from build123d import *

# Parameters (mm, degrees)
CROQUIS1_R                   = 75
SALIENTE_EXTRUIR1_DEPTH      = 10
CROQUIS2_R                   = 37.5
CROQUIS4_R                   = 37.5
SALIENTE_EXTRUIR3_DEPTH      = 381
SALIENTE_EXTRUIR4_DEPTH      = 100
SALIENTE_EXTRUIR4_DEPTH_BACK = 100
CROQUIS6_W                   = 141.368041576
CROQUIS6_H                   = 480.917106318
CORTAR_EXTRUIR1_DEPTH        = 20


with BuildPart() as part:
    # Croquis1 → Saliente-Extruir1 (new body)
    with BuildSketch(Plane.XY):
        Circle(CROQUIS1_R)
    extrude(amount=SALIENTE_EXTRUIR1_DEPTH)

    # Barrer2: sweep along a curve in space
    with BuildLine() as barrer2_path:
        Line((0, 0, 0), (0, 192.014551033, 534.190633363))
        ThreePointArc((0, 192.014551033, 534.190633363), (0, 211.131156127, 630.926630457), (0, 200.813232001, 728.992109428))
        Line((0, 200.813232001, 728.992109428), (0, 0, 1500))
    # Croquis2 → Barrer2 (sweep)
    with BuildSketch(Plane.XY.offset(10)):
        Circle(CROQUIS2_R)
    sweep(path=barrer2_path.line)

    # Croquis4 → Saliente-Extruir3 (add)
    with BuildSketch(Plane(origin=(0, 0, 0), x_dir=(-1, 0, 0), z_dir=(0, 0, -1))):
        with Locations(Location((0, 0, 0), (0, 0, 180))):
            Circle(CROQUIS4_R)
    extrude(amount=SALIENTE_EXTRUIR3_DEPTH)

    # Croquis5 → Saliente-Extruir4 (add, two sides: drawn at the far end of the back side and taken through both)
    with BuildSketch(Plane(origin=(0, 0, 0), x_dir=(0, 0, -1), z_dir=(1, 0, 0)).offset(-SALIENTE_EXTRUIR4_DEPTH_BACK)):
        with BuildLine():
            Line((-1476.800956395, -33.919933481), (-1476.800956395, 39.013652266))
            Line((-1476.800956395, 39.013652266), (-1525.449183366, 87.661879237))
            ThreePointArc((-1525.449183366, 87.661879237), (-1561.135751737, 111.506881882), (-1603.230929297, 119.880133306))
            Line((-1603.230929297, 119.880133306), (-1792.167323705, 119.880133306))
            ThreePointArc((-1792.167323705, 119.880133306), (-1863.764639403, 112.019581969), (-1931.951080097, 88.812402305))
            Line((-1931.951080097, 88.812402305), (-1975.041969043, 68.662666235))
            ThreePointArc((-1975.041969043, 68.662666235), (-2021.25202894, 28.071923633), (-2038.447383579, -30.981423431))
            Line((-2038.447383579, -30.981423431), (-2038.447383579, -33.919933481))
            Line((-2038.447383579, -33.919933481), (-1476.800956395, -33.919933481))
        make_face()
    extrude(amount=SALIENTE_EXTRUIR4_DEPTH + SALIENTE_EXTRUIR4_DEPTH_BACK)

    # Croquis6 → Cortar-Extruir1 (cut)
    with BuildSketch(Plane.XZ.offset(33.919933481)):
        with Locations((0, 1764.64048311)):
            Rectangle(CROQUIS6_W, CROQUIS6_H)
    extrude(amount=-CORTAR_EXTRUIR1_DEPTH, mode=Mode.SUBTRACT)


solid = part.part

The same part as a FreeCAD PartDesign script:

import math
import FreeCAD as App
import Part
import Sketcher
from FreeCAD import Vector
Q = App.Units.Quantity

doc = App.newDocument("Part")
body = doc.addObject("PartDesign::Body", "Body")

# Sketch on XY plane
sketch1 = body.newObject("Sketcher::SketchObject", "Sketch")
sketch1.AttachmentSupport = (doc.getObject("XY_Plane"), [""])
sketch1.MapMode = "FlatFace"
sketch1.addGeometry(Part.Circle(Vector(0, 0, 0), Vector(0, 0, 1), 75), False)
sketch1.addConstraint(Sketcher.Constraint("Coincident", 0, 3, -1, 1))
sketch1.addConstraint(Sketcher.Constraint("Diameter", 0, Q("150 mm")))
pad1 = body.newObject("PartDesign::Pad", "Pad")
pad1.Profile = sketch1
pad1.Length = 10

# Sketch on XY plane
sketch2 = body.newObject("Sketcher::SketchObject", "Sketch001")
sketch2.AttachmentSupport = (doc.getObject("XY_Plane"), [""])
sketch2.MapMode = "FlatFace"
sketch2.AttachmentOffset = App.Placement(Vector(0, 0, 10), App.Rotation())
sketch2.addGeometry(Part.Circle(Vector(0, 0, 0), Vector(0, 0, 1), 37.5), False)
sketch2.addConstraint(Sketcher.Constraint("Coincident", 0, 3, -1, 1))
sketch2.addConstraint(Sketcher.Constraint("Diameter", 0, Q("75 mm")))

# Sketch on YZ plane
sketch3 = body.newObject("Sketcher::SketchObject", "Sketch002")
sketch3.AttachmentSupport = (doc.getObject("YZ_Plane"), [""])
sketch3.MapMode = "FlatFace"
sketch3.addGeometry(Part.LineSegment(Vector(0, 0, 0), Vector(192.014551, 534.190633, 0)), False)
sketch3.addGeometry(Part.ArcOfCircle(Part.Circle(Vector(-118.532742, 645.8167, 0), Vector(0, 0, 1), 330), math.radians(-19.770948), math.radians(14.598658)), False)
sketch3.addGeometry(Part.LineSegment(Vector(200.813232, 728.992109, 0), Vector(0, 1500, 0)), False)
sketch3.addConstraint(Sketcher.Constraint("Tangent", 0, 2, 1, 1))
sketch3.addConstraint(Sketcher.Constraint("Tangent", 1, 2, 2, 1))
sketch3.addConstraint(Sketcher.Constraint("Coincident", 0, 1, -1, 1))
sketch3.addConstraint(Sketcher.Constraint("PointOnObject", 2, 2, -2))
sketch3.addConstraint(Sketcher.Constraint("Radius", 1, Q("330 mm")))
sketch3.addConstraint(Sketcher.Constraint("DistanceY", -1, 1, 2, 2, Q("1500 mm")))
sketch3.addConstraint(Sketcher.Constraint("DistanceY", -1, 1, 1, 3, Q("645.8167 mm")))
sketch3.addConstraint(Sketcher.Constraint("Distance", 2, Q("796.730269 mm")))
doc.recompute()

additivepipe = body.newObject("PartDesign::AdditivePipe", "AdditivePipe")
additivepipe.Profile = sketch2
additivepipe.Spine = (sketch3, ["Edge1", "Edge2", "Edge3"])

# Sketch on XY plane
sketch4 = body.newObject("Sketcher::SketchObject", "Sketch003")
sketch4.AttachmentSupport = (doc.getObject("XY_Plane"), [""])
sketch4.MapMode = "FlatFace"
sketch4.addGeometry(Part.Circle(Vector(0, 0, 0), Vector(0, 0, 1), 37.5), False)
sketch4.addConstraint(Sketcher.Constraint("Coincident", 0, 3, -1, 1))
sketch4.addConstraint(Sketcher.Constraint("Diameter", 0, Q("75 mm")))
pad2 = body.newObject("PartDesign::Pad", "Pad001")
pad2.Profile = sketch4
pad2.Length = 381
pad2.Reversed = True

# Sketch on YZ plane
sketch5 = body.newObject("Sketcher::SketchObject", "Sketch004")
sketch5.AttachmentSupport = (doc.getObject("YZ_Plane"), [""])
sketch5.MapMode = "FlatFace"
sketch5.addGeometry(Part.LineSegment(Vector(-33.919933, 1476.800956, 0), Vector(39.013652, 1476.800956, 0)), False)
sketch5.addGeometry(Part.LineSegment(Vector(39.013652, 1476.800956, 0), Vector(87.661879, 1525.449183, 0)), False)
sketch5.addGeometry(Part.ArcOfCircle(Part.Circle(Vector(9.880133, 1603.230929, 0), Vector(0, 0, 1), 110), math.radians(-45), math.radians(0)), False)
sketch5.addGeometry(Part.LineSegment(Vector(119.880133, 1603.230929, 0), Vector(119.880133, 1792.167324, 0)), False)
sketch5.addGeometry(Part.ArcOfCircle(Part.Circle(Vector(-210.119867, 1792.167324, 0), Vector(0, 0, 1), 330), math.radians(0), math.radians(25.061267)), False)
sketch5.addGeometry(Part.LineSegment(Vector(88.812402, 1931.95108, 0), Vector(68.662666, 1975.041969, 0)), False)
sketch5.addGeometry(Part.ArcOfCircle(Part.Circle(Vector(-30.981423, 1928.447384, 0), Vector(0, 0, 1), 110), math.radians(25.061267), math.radians(90)), False)
sketch5.addGeometry(Part.LineSegment(Vector(-30.981423, 2038.447384, 0), Vector(-33.919933, 2038.447384, 0)), False)
sketch5.addGeometry(Part.LineSegment(Vector(-33.919933, 2038.447384, 0), Vector(-33.919933, 1476.800956, 0)), False)
sketch5.addConstraint(Sketcher.Constraint("Coincident", 0, 2, 1, 1))
sketch5.addConstraint(Sketcher.Constraint("Tangent", 1, 2, 2, 1))
sketch5.addConstraint(Sketcher.Constraint("Tangent", 2, 2, 3, 1))
sketch5.addConstraint(Sketcher.Constraint("Tangent", 3, 2, 4, 1))
sketch5.addConstraint(Sketcher.Constraint("Tangent", 4, 2, 5, 1))
sketch5.addConstraint(Sketcher.Constraint("Tangent", 5, 2, 6, 1))
sketch5.addConstraint(Sketcher.Constraint("Tangent", 6, 2, 7, 1))
sketch5.addConstraint(Sketcher.Constraint("Coincident", 7, 2, 8, 1))
sketch5.addConstraint(Sketcher.Constraint("Coincident", 8, 2, 0, 1))
sketch5.addConstraint(Sketcher.Constraint("Horizontal", 0))
sketch5.addConstraint(Sketcher.Constraint("Vertical", 3))
sketch5.addConstraint(Sketcher.Constraint("Horizontal", 7))
sketch5.addConstraint(Sketcher.Constraint("Vertical", 8))
sketch5.addConstraint(Sketcher.Constraint("Equal", 2, 6))
sketch5.addConstraint(Sketcher.Constraint("Radius", 2, Q("110 mm")))
sketch5.addConstraint(Sketcher.Constraint("Radius", 4, Q("330 mm")))
sketch5.addConstraint(Sketcher.Constraint("Angle", 1, Q("45 deg")))
sketch5.addConstraint(Sketcher.Constraint("DistanceX", 7, 2, 7, 1, Q("2.93851 mm")))
sketch5.addConstraint(Sketcher.Constraint("DistanceY", 1, 2, 6, 3, Q("402.9982 mm")))
sketch5.addConstraint(Sketcher.Constraint("DistanceX", 7, 2, 5, 2, Q("102.5826 mm")))
sketch5.addConstraint(Sketcher.Constraint("Distance", 5, Q("47.569282 mm")))
sketch5.addConstraint(Sketcher.Constraint("DistanceX", 0, 1, 0, 2, Q("72.933586 mm")))
sketch5.addConstraint(Sketcher.Constraint("DistanceY", -1, 1, 2, 3, Q("1603.230929 mm")))
sketch5.addConstraint(Sketcher.Constraint("DistanceX", -1, 1, 1, 2, Q("87.661879 mm")))
pad3 = body.newObject("PartDesign::Pad", "Pad002")
pad3.Profile = sketch5
pad3.Type = "TwoLengths"
pad3.Length = 100
pad3.Length2 = 100

# Sketch on XZ plane
sketch6 = body.newObject("Sketcher::SketchObject", "Sketch005")
sketch6.AttachmentSupport = (doc.getObject("XZ_Plane"), [""])
sketch6.MapMode = "FlatFace"
sketch6.AttachmentOffset = App.Placement(Vector(0, 0, 33.919933), App.Rotation())
sketch6.addGeometry(Part.LineSegment(Vector(-70.684021, 2005.099036, 0), Vector(-70.684021, 1524.18193, 0)), False)
sketch6.addGeometry(Part.LineSegment(Vector(-70.684021, 1524.18193, 0), Vector(70.684021, 1524.18193, 0)), False)
sketch6.addGeometry(Part.LineSegment(Vector(70.684021, 1524.18193, 0), Vector(70.684021, 2005.099036, 0)), False)
sketch6.addGeometry(Part.LineSegment(Vector(70.684021, 2005.099036, 0), Vector(-70.684021, 2005.099036, 0)), False)
sketch6.addConstraint(Sketcher.Constraint("Coincident", 0, 2, 1, 1))
sketch6.addConstraint(Sketcher.Constraint("Coincident", 1, 2, 2, 1))
sketch6.addConstraint(Sketcher.Constraint("Coincident", 2, 2, 3, 1))
sketch6.addConstraint(Sketcher.Constraint("Coincident", 3, 2, 0, 1))
sketch6.addConstraint(Sketcher.Constraint("Vertical", 0))
sketch6.addConstraint(Sketcher.Constraint("Horizontal", 1))
sketch6.addConstraint(Sketcher.Constraint("Vertical", 2))
sketch6.addConstraint(Sketcher.Constraint("Horizontal", 3))
sketch6.addConstraint(Sketcher.Constraint("DistanceX", 1, 1, 1, 2, Q("141.368042 mm")))
sketch6.addConstraint(Sketcher.Constraint("DistanceY", 0, 2, 0, 1, Q("480.917106 mm")))
sketch6.addConstraint(Sketcher.Constraint("DistanceX", 0, 2, -1, 1, Q("70.684021 mm")))
sketch6.addConstraint(Sketcher.Constraint("DistanceY", -1, 1, 0, 2, Q("1524.18193 mm")))
pocket1 = body.newObject("PartDesign::Pocket", "Pocket")
pocket1.Profile = sketch6
pocket1.Length = 20

doc.recompute()
